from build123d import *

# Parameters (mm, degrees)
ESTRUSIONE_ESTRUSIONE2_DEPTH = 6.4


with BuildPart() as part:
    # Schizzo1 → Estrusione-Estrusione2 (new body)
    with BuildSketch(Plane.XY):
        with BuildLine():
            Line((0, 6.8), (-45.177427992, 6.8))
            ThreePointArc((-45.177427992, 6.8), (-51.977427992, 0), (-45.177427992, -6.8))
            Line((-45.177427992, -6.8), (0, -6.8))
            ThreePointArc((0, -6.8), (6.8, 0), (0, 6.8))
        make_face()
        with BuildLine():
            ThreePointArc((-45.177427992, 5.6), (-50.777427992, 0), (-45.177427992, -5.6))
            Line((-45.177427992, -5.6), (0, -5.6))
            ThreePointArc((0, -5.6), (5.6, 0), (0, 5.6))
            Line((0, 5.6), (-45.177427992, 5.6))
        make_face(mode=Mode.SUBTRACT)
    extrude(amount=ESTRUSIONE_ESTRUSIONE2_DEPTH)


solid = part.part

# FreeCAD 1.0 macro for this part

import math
import FreeCAD as App
import Part
import Sketcher

V = App.Vector

doc = App.newDocument("Part")
body = doc.addObject("PartDesign::Body", "Body")

sketch1 = doc.addObject("Sketcher::SketchObject", "Sketch")
body.addObject(sketch1)
sketch1.AttachmentSupport = (doc.XY_Plane, [""])
sketch1.MapMode = "FlatFace"
sketch1.addGeometry([
    Part.LineSegment(V(0, 7, 0), V(-45, 7, 0)),
    Part.ArcOfCircle(Part.Circle(V(-45, 0, 0), V(0, 0, 1), 7), math.radians(90), math.radians(270)),
    Part.LineSegment(V(-45, -7, 0), V(0, -7, 0)),
    Part.ArcOfCircle(Part.Circle(V(0, 0, 0), V(0, 0, 1), 7), math.radians(-90), math.radians(90)),
    Part.ArcOfCircle(Part.Circle(V(-45, 0, 0), V(0, 0, 1), 6), math.radians(90), math.radians(270)),
    Part.LineSegment(V(-45, 6, 0), V(0, 6, 0)),
    Part.ArcOfCircle(Part.Circle(V(0, 0, 0), V(0, 0, 1), 6), math.radians(-90), math.radians(90)),
    Part.LineSegment(V(0, -6, 0), V(-45, -6, 0)),
], False)
sketch1.addConstraint([
    Sketcher.Constraint("Tangent", 0, 2, 1, 1),
    Sketcher.Constraint("Tangent", 1, 2, 2, 1),
    Sketcher.Constraint("Tangent", 2, 2, 3, 1),
    Sketcher.Constraint("Tangent", 3, 2, 0, 1),
    Sketcher.Constraint("Tangent", 4, 1, 5, 1),
    Sketcher.Constraint("Tangent", 5, 2, 6, 2),
    Sketcher.Constraint("Tangent", 6, 1, 7, 1),
    Sketcher.Constraint("Tangent", 7, 2, 4, 2),
    Sketcher.Constraint("Horizontal", 0),
    Sketcher.Constraint("Horizontal", 2),
    Sketcher.Constraint("Horizontal", 5),
    Sketcher.Constraint("Horizontal", 7),
    Sketcher.Constraint("Coincident", 3, 3, -1, 1),
    Sketcher.Constraint("Coincident", 6, 3, -1, 1),
    Sketcher.Constraint("Vertical", 4, 3, 0, 2),
    Sketcher.Constraint("Radius", 1, 6.8),
    Sketcher.Constraint("Radius", 4, 5.6),
    Sketcher.Constraint("DistanceX", 0, 2, 0, 1, 45.177428),
])
pad1 = doc.addObject("PartDesign::Pad", "Pad")
body.addObject(pad1)
pad1.Profile = sketch1
pad1.Length = 6.4

doc.recompute()
